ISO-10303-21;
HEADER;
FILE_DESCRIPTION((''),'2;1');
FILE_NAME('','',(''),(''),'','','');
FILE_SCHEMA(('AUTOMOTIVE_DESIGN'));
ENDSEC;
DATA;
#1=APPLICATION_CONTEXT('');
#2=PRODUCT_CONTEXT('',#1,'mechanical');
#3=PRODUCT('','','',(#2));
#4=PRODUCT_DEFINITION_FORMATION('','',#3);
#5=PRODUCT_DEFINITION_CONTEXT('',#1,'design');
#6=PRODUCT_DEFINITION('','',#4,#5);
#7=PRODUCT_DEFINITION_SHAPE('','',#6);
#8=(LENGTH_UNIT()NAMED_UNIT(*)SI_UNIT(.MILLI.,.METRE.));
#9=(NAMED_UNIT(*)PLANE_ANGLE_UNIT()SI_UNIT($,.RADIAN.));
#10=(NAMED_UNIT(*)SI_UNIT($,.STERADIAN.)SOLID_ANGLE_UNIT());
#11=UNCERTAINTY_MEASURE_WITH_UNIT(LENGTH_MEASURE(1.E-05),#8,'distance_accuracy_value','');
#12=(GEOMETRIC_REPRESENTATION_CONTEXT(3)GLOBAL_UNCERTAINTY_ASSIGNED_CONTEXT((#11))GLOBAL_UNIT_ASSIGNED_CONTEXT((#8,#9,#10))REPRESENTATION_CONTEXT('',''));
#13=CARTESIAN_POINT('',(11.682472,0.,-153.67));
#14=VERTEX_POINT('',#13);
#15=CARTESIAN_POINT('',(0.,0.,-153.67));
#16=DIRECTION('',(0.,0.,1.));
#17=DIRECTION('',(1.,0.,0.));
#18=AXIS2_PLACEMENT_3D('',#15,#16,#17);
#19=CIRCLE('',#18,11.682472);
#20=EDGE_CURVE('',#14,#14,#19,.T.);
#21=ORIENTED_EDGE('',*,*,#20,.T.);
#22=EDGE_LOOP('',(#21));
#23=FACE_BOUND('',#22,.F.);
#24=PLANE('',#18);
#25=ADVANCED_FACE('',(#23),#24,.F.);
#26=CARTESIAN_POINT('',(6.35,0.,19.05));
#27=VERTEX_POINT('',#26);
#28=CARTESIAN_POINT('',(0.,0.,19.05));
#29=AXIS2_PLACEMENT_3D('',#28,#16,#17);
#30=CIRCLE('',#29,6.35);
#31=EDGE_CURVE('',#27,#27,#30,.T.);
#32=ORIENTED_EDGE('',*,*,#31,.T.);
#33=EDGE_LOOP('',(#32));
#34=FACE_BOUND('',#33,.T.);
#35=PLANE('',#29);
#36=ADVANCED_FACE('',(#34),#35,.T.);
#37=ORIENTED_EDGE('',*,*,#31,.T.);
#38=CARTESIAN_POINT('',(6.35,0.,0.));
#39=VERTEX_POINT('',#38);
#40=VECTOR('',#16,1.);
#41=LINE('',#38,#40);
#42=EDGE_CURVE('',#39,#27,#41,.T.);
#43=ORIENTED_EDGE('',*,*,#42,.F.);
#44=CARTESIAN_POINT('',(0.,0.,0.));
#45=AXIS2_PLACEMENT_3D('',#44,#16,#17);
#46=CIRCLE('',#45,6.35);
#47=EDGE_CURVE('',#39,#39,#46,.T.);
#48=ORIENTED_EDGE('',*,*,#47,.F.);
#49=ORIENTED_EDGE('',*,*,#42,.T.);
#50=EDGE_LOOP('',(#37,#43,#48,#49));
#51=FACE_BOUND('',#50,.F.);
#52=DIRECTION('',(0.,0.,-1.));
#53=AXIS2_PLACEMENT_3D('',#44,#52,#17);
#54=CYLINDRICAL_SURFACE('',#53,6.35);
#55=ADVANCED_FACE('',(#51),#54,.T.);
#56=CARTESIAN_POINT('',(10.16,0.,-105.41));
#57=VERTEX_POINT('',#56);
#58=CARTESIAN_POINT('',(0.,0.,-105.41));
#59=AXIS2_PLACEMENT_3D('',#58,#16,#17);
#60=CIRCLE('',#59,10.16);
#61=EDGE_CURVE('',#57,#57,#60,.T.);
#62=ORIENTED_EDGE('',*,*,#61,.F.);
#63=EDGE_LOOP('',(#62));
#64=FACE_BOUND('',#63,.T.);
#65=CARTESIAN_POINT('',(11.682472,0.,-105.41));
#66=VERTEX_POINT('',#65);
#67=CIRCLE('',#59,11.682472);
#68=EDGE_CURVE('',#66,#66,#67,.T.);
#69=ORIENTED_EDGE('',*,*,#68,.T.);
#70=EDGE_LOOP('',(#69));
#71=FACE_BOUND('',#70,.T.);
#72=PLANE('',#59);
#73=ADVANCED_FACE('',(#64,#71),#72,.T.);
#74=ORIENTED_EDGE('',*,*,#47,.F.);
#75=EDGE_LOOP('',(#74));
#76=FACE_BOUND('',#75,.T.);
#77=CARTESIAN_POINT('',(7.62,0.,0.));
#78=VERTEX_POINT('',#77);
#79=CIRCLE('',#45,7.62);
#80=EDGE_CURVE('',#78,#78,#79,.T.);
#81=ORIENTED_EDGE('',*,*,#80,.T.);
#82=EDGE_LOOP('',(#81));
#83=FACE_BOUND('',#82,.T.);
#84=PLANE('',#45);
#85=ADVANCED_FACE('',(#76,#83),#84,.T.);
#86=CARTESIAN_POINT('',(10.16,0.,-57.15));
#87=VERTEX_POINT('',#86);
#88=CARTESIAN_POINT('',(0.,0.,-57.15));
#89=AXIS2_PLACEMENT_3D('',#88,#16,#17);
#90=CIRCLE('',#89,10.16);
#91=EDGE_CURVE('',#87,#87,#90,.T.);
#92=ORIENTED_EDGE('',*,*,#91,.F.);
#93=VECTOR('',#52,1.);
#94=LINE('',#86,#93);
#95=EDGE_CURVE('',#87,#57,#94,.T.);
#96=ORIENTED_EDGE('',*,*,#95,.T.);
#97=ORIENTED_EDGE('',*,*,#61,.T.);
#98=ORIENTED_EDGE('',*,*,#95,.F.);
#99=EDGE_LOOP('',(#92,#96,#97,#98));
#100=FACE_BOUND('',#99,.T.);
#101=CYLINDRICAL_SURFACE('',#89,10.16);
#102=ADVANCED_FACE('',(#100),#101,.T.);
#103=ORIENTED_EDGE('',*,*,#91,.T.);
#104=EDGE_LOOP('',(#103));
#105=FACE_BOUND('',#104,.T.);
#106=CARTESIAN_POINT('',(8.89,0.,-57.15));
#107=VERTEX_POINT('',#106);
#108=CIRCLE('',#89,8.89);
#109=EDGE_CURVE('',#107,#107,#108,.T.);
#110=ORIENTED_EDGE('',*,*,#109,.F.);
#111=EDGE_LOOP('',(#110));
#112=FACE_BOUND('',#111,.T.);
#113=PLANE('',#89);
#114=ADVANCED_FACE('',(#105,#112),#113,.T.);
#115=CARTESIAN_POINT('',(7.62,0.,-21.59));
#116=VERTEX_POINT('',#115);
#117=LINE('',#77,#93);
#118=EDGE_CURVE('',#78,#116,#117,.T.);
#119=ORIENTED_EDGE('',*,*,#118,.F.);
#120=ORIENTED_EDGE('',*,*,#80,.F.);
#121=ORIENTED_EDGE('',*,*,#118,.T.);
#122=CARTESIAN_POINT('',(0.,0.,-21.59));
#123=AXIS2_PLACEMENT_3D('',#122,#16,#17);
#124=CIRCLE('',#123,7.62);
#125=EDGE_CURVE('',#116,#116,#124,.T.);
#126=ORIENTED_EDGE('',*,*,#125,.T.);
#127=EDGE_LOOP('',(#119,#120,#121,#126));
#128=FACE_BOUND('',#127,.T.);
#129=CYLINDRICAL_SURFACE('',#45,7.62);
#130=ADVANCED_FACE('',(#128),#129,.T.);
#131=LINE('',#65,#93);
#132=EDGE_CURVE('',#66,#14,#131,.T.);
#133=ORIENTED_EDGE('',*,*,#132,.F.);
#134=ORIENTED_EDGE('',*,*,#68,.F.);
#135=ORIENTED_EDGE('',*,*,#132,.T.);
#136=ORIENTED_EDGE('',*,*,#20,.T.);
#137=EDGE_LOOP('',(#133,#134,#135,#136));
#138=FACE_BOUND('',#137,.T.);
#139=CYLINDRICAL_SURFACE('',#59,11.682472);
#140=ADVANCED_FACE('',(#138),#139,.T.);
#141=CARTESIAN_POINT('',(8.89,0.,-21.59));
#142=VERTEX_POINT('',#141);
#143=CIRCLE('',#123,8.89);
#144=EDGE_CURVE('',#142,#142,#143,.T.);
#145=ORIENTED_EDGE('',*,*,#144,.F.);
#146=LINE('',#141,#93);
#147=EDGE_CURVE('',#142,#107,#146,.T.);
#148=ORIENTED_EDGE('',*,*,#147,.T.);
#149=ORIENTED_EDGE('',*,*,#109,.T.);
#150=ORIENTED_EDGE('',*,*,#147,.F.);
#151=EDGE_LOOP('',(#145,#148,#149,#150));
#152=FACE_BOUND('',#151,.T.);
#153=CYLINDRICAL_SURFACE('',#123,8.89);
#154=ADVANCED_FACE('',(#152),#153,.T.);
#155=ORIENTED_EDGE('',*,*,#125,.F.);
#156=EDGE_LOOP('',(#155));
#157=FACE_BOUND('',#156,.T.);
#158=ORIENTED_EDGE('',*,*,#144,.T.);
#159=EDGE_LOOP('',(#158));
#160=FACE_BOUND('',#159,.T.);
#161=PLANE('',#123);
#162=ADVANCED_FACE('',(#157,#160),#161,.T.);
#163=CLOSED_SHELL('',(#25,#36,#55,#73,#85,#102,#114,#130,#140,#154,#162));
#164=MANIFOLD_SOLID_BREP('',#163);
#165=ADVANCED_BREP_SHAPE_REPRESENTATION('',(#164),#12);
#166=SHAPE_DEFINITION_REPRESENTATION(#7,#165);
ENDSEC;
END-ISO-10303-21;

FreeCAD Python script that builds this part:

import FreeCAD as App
import Part
import Sketcher
from FreeCAD import Vector
Q = App.Units.Quantity

doc = App.newDocument("Part")
body = doc.addObject("PartDesign::Body", "Body")

# Sketch on XY plane
sketch1 = body.newObject("Sketcher::SketchObject", "Sketch")
sketch1.AttachmentSupport = (doc.getObject("XY_Plane"), [""])
sketch1.MapMode = "FlatFace"
sketch1.addGeometry(Part.Circle(Vector(0, 0, 0), Vector(0, 0, 1), 6), False)
sketch1.addConstraint(Sketcher.Constraint("Coincident", 0, 3, -1, 1))
sketch1.addConstraint(Sketcher.Constraint("Diameter", 0, Q("0.5 in")))
pad1 = body.newObject("PartDesign::Pad", "Pad")
pad1.Profile = sketch1
pad1.Length = Q("0.75 in")

# Sketch on XY plane
sketch2 = body.newObject("Sketcher::SketchObject", "Sketch001")
sketch2.AttachmentSupport = (doc.getObject("XY_Plane"), [""])
sketch2.MapMode = "FlatFace"
sketch2.addGeometry(Part.Circle(Vector(0, 0, 0), Vector(0, 0, 1), 8), False)
sketch2.addConstraint(Sketcher.Constraint("Coincident", 0, 3, -1, 1))
sketch2.addConstraint(Sketcher.Constraint("Diameter", 0, Q("0.6 in")))
pad2 = body.newObject("PartDesign::Pad", "Pad001")
pad2.Profile = sketch2
pad2.Length = Q("0.85 in")
pad2.Reversed = True

# Sketch on XY plane
sketch3 = body.newObject("Sketcher::SketchObject", "Sketch002")
sketch3.AttachmentSupport = (doc.getObject("XY_Plane"), [""])
sketch3.MapMode = "FlatFace"
sketch3.AttachmentOffset = App.Placement(Vector(0, 0, -0.85 * 25.4), App.Rotation())
sketch3.addGeometry(Part.Circle(Vector(0, 0, 0), Vector(0, 0, 1), 9), False)
sketch3.addConstraint(Sketcher.Constraint("Coincident", 0, 3, -1, 1))
sketch3.addConstraint(Sketcher.Constraint("Diameter", 0, Q("0.7 in")))
pad3 = body.newObject("PartDesign::Pad", "Pad002")
pad3.Profile = sketch3
pad3.Length = Q("1.4 in")
pad3.Reversed = True

# Sketch on XY plane
sketch4 = body.newObject("Sketcher::SketchObject", "Sketch003")
sketch4.AttachmentSupport = (doc.getObject("XY_Plane"), [""])
sketch4.MapMode = "FlatFace"
sketch4.AttachmentOffset = App.Placement(Vector(0, 0, -2.25 * 25.4), App.Rotation())
sketch4.addGeometry(Part.Circle(Vector(0, 0, 0), Vector(0, 0, 1), 10), False)
sketch4.addConstraint(Sketcher.Constraint("Coincident", 0, 3, -1, 1))
sketch4.addConstraint(Sketcher.Constraint("Diameter", 0, Q("0.8 in")))
pad4 = body.newObject("PartDesign::Pad", "Pad003")
pad4.Profile = sketch4
pad4.Length = Q("1.9 in")
pad4.Reversed = True

# Sketch on XY plane
sketch5 = body.newObject("Sketcher::SketchObject", "Sketch004")
sketch5.AttachmentSupport = (doc.getObject("XY_Plane"), [""])
sketch5.MapMode = "FlatFace"
sketch5.AttachmentOffset = App.Placement(Vector(0, 0, -4.15 * 25.4), App.Rotation())
sketch5.addGeometry(Part.Circle(Vector(0, 0, 0), Vector(0, 0, 1), 12), False)
sketch5.addConstraint(Sketcher.Constraint("Coincident", 0, 3, -1, 1))
sketch5.addConstraint(Sketcher.Constraint("Diameter", 0, Q("23.364944 mm")))
pad5 = body.newObject("PartDesign::Pad", "Pad004")
pad5.Profile = sketch5
pad5.Length = Q("1.9 in")
pad5.Reversed = True

doc.recompute()
